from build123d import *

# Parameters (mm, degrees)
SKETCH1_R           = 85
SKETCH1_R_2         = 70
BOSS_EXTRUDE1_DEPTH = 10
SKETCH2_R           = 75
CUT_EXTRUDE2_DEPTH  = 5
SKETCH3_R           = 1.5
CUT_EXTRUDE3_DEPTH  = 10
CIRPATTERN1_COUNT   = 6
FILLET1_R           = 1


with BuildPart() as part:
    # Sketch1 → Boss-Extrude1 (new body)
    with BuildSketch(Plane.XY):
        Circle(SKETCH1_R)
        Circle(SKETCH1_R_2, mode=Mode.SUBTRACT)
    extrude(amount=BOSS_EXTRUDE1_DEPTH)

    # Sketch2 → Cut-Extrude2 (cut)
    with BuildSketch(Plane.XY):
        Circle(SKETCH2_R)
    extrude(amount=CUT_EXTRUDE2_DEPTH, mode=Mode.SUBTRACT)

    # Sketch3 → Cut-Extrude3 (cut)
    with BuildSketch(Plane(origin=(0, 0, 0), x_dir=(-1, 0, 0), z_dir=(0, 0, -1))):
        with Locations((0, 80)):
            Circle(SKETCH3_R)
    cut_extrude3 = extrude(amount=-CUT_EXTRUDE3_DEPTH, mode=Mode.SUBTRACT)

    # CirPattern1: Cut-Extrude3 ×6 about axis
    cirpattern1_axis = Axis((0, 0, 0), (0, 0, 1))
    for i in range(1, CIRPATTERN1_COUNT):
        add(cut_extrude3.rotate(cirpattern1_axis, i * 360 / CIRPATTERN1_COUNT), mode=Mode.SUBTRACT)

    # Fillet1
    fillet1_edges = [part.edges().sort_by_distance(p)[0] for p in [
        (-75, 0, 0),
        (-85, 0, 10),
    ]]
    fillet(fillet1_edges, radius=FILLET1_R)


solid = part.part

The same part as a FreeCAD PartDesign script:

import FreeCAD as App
import Part
import Sketcher
Q = App.Units.Quantity


def edges_at(feature, points):
    """Names of the edges that pass closest to the given points."""
    edges = feature.Shape.Edges
    near = lambda p: min(range(len(edges)), key=lambda i: edges[i].distToShape(Part.Vertex(*p))[0])
    return sorted({f"Edge{near(p) + 1}" for p in points})

doc = App.newDocument("Part")
body = doc.addObject("PartDesign::Body", "Body")

# Sketch on XY plane
sketch1 = doc.addObject("Sketcher::SketchObject", "Sketch")
body.addObject(sketch1)
sketch1.AttachmentSupport = (doc.XY_Plane, [""])
sketch1.MapMode = "FlatFace"
sketch1.addGeometry([
    Part.Circle(App.Vector(0, 0, 0), App.Vector(0, 0, 1), 85),
    Part.Circle(App.Vector(0, 0, 0), App.Vector(0, 0, 1), 70),
], False)
sketch1.addConstraint([
    Sketcher.Constraint("Coincident", 0, 3, -1, 1),
    Sketcher.Constraint("Coincident", 1, 3, -1, 1),
    Sketcher.Constraint("Diameter", 0, Q("170 mm")),
    Sketcher.Constraint("Diameter", 1, Q("140 mm")),
])
pad1 = doc.addObject("PartDesign::Pad", "Pad")
body.addObject(pad1)
pad1.Profile = sketch1
pad1.Length = 10

# Sketch on XY plane
sketch2 = doc.addObject("Sketcher::SketchObject", "Sketch001")
body.addObject(sketch2)
sketch2.AttachmentSupport = (doc.XY_Plane, [""])
sketch2.MapMode = "FlatFace"
sketch2.addGeometry(Part.Circle(App.Vector(0, 0, 0), App.Vector(0, 0, 1), 75), False)
sketch2.addConstraint([
    Sketcher.Constraint("Coincident", 0, 3, -1, 1),
    Sketcher.Constraint("Diameter", 0, Q("150 mm")),
])
pocket1 = doc.addObject("PartDesign::Pocket", "Pocket")
body.addObject(pocket1)
pocket1.Profile = sketch2
pocket1.Length = 5
pocket1.Reversed = True

# Sketch on XY plane
sketch3 = doc.addObject("Sketcher::SketchObject", "Sketch002")
body.addObject(sketch3)
sketch3.AttachmentSupport = (doc.XY_Plane, [""])
sketch3.MapMode = "FlatFace"
sketch3.addGeometry(Part.Circle(App.Vector(0, 80, 0), App.Vector(0, 0, 1), 1.5), False)
sketch3.addConstraint([
    Sketcher.Constraint("PointOnObject", 0, 3, -2),
    Sketcher.Constraint("Diameter", 0, Q("3 mm")),
    Sketcher.Constraint("DistanceY", -1, 1, 0, 3, Q("80 mm")),
])
pocket2 = doc.addObject("PartDesign::Pocket", "Pocket001")
body.addObject(pocket2)
pocket2.Profile = sketch3
pocket2.Length = 10
pocket2.Reversed = True
doc.recompute()

polarpattern = doc.addObject("PartDesign::PolarPattern", "PolarPattern")
body.addObject(polarpattern)
polarpattern.Originals = [pocket2]
polarpattern.Axis = (doc.Z_Axis, [""])
polarpattern.Angle = 360
polarpattern.Occurrences = 6
body.Tip = polarpattern
doc.recompute()

fillet = doc.addObject("PartDesign::Fillet", "Fillet")
body.addObject(fillet)
fillet.Base = (polarpattern, edges_at(polarpattern, [(-75, 0, 0), (-85, 0, 10)]))
fillet.Radius = 1

doc.recompute()
